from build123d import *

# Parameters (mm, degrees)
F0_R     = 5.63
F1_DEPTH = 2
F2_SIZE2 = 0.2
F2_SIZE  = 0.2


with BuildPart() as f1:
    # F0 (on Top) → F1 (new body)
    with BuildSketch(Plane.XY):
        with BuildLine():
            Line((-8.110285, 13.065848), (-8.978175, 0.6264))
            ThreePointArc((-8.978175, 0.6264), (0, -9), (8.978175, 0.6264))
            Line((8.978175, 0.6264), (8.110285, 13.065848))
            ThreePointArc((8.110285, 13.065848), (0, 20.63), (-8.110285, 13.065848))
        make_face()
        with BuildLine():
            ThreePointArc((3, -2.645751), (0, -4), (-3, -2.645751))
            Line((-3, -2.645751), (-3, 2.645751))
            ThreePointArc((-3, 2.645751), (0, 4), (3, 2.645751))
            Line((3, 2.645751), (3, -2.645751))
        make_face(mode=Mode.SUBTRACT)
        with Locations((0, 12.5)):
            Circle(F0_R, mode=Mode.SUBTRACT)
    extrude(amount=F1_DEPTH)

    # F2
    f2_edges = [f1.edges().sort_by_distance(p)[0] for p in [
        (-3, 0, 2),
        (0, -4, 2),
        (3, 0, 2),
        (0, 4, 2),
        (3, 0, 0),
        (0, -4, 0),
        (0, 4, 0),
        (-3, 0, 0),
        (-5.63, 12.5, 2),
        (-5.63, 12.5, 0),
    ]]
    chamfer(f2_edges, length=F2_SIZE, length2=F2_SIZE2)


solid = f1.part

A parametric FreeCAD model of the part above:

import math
import FreeCAD as App
import Part
import Sketcher
Q = App.Units.Quantity


def edges_at(feature, points):
    """Names of the edges that pass closest to the given points."""
    edges = feature.Shape.Edges
    near = lambda p: min(range(len(edges)), key=lambda i: edges[i].distToShape(Part.Vertex(*p))[0])
    return sorted({f"Edge{near(p) + 1}" for p in points})

doc = App.newDocument("Part")
body = doc.addObject("PartDesign::Body", "Body")

sketch1 = body.newObject("Sketcher::SketchObject", "Sketch")
sketch1.AttachmentSupport = (doc.getObject("XY_Plane"), [""])
sketch1.MapMode = "FlatFace"
sketch1.addGeometry([
    Part.LineSegment(App.Vector(-8.1, 13.1, 0), App.Vector(-9, 0.6, 0)),
    Part.ArcOfCircle(Part.Circle(App.Vector(0, 0, 0), App.Vector(0, 0, 1), 9), math.radians(176), math.radians(364)),
    Part.LineSegment(App.Vector(9, 0.6, 0), App.Vector(8.1, 13.1, 0)),
    Part.ArcOfCircle(Part.Circle(App.Vector(0, 12.5, 0), App.Vector(0, 0, 1), 8.1), math.radians(4), math.radians(176)),
    Part.LineSegment(App.Vector(3, 2.6, 0), App.Vector(3, -2.6, 0)),
    Part.ArcOfCircle(Part.Circle(App.Vector(0, 0, 0), App.Vector(0, 0, 1), 4), math.radians(-139), math.radians(-41)),
    Part.LineSegment(App.Vector(-3, -2.6, 0), App.Vector(-3, 2.6, 0)),
    Part.ArcOfCircle(Part.Circle(App.Vector(0, 0, 0), App.Vector(0, 0, 1), 4), math.radians(41), math.radians(139)),
    Part.Circle(App.Vector(0, 12.5, 0), App.Vector(0, 0, 1), 5.6),
], False)
sketch1.addConstraint([
    Sketcher.Constraint("Tangent", 0, 2, 1, 1),
    Sketcher.Constraint("Tangent", 1, 2, 2, 1),
    Sketcher.Constraint("Tangent", 2, 2, 3, 1),
    Sketcher.Constraint("Tangent", 3, 2, 0, 1),
    Sketcher.Constraint("Coincident", 4, 2, 5, 2),
    Sketcher.Constraint("Coincident", 5, 1, 6, 1),
    Sketcher.Constraint("Coincident", 6, 2, 7, 2),
    Sketcher.Constraint("Coincident", 7, 1, 4, 1),
    Sketcher.Constraint("Vertical", 4),
    Sketcher.Constraint("Vertical", 6),
    Sketcher.Constraint("Coincident", 1, 3, -1, 1),
    Sketcher.Constraint("Coincident", 5, 3, -1, 1),
    Sketcher.Constraint("Coincident", 7, 3, -1, 1),
    Sketcher.Constraint("Coincident", 8, 3, 3, 3),
    Sketcher.Constraint("Equal", 5, 7),
    Sketcher.Constraint("PointOnObject", 3, 3, -2),
    Sketcher.Constraint("Horizontal", 4, 2, 5, 1),
    Sketcher.Constraint("Radius", 1, Q("9 mm")),
    Sketcher.Constraint("Radius", 5, Q("3.999999 mm")),
    Sketcher.Constraint("Diameter", 8, Q("11.26 mm")),
    Sketcher.Constraint("Radius", 3, Q("8.13 mm")),
    Sketcher.Constraint("DistanceX", -1, 1, 4, 2, Q("3 mm")),
    Sketcher.Constraint("DistanceY", -1, 1, 3, 3, Q("12.5 mm")),
])
pad1 = body.newObject("PartDesign::Pad", "Pad")
pad1.Profile = sketch1
pad1.Length = 2
doc.recompute()

chamfer = body.newObject("PartDesign::Chamfer", "Chamfer")
chamfer.Base = (pad1, edges_at(pad1, [
    (-3, 0, 2),
    (0, -4, 2),
    (3, 0, 2),
    (0, 4, 2),
    (3, 0, 0),
    (0, -4, 0),
    (0, 4, 0),
    (-3, 0, 0),
    (-5.63, 12.5, 2),
    (-5.63, 12.5, 0),
]))
chamfer.ChamferType = "Two distances"
chamfer.Size = 0.2
chamfer.Size2 = 0.2

doc.recompute()
